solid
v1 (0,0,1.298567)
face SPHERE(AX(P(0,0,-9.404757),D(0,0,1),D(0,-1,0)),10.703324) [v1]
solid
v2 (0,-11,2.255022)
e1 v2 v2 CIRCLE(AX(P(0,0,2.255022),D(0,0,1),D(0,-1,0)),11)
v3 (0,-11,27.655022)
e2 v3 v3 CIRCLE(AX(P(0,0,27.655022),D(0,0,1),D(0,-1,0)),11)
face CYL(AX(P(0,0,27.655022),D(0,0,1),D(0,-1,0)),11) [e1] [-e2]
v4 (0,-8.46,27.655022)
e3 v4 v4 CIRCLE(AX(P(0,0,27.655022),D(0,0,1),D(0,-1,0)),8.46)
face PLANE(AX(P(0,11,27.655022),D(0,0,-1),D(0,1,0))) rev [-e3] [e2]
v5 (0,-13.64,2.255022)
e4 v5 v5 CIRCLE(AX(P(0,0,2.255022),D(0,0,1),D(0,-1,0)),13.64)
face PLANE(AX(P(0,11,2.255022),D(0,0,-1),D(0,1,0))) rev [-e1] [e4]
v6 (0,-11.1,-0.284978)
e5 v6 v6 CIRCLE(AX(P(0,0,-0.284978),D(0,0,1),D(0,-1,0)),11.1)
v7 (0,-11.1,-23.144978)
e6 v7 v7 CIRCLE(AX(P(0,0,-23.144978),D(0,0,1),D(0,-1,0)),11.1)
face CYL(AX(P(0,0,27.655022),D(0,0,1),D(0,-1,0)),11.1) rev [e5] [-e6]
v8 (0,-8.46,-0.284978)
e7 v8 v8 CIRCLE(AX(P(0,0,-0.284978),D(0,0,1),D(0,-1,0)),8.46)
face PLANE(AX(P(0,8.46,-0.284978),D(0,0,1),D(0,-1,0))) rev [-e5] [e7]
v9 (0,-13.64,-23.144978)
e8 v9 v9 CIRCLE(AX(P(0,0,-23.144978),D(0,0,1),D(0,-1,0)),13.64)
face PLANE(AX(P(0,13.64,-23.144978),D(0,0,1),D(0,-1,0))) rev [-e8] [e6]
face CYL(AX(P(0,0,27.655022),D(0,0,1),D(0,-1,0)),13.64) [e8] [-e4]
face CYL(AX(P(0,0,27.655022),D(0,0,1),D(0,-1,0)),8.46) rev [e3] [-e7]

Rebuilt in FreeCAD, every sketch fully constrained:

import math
import FreeCAD as App
import Part
import Sketcher

V = App.Vector
Q = App.Units.Quantity


def add_polygon(sketch, points):
    """Adds a closed chain of lines whose ends are joined by coincident constraints."""
    first, n = sketch.GeometryCount, len(points)
    for a, b in zip(points, points[1:] + points[:1]):
        sketch.addGeometry(Part.LineSegment(App.Vector(*a, 0), App.Vector(*b, 0)), False)
    for i in range(n):
        sketch.addConstraint(Sketcher.Constraint("Coincident", first + i, 2, first + (i + 1) % n, 1))

doc = App.newDocument("Part")
body = doc.addObject("PartDesign::Body", "Body")
body.AllowCompound = True

# Sketch on YZ plane
sketch1 = body.newObject("Sketcher::SketchObject", "Sketch")
sketch1.AttachmentSupport = (doc.getObject("YZ_Plane"), [""])
sketch1.MapMode = "FlatFace"
add_polygon(sketch1, [(11, 2.3), (11, 27.7), (8.5, 27.7), (8.5, -0.3), (11.1, -0.3), (11.1, -23.1), (13.6, -23.1), (13.6, 2.3)])  # lines 0-7
sketch1.addGeometry(Part.LineSegment(V(0, 1.3, 0), V(0, -20.1, 0)), False)  # 8
sketch1.addGeometry(Part.ArcOfCircle(Part.Circle(V(0, -9.4, 0), V(0, 0, 1), 10.7), math.radians(-90), math.radians(90)), False)  # 9
sketch1.addConstraint(Sketcher.Constraint("Coincident", 8, 1, 9, 2))
sketch1.addConstraint(Sketcher.Constraint("Coincident", 9, 1, 8, 2))
sketch1.addConstraint(Sketcher.Constraint("Vertical", 0))
sketch1.addConstraint(Sketcher.Constraint("Horizontal", 1))
sketch1.addConstraint(Sketcher.Constraint("Vertical", 2))
sketch1.addConstraint(Sketcher.Constraint("Horizontal", 3))
sketch1.addConstraint(Sketcher.Constraint("Vertical", 4))
sketch1.addConstraint(Sketcher.Constraint("Horizontal", 5))
sketch1.addConstraint(Sketcher.Constraint("Vertical", 6))
sketch1.addConstraint(Sketcher.Constraint("Horizontal", 7))
sketch1.addConstraint(Sketcher.Constraint("Vertical", 8))
sketch1.addConstraint(Sketcher.Constraint("PointOnObject", 9, 3, -2))
sketch1.addConstraint(Sketcher.Constraint("PointOnObject", 8, 1, -2))
sketch1.addConstraint(Sketcher.Constraint("Equal", 1, 5))
sketch1.addConstraint(Sketcher.Constraint("Equal", 0, 6))
sketch1.addConstraint(Sketcher.Constraint("DistanceY", 0, 1, 0, 2, Q("1 in")))
sketch1.addConstraint(Sketcher.Constraint("DistanceX", 1, 2, 1, 1, Q("0.1 in")))
sketch1.addConstraint(Sketcher.Constraint("DistanceY", 2, 2, 2, 1, Q("1.1 in")))
sketch1.addConstraint(Sketcher.Constraint("DistanceX", 3, 1, 3, 2, 2.64))
sketch1.addConstraint(Sketcher.Constraint("Radius", 9, 10.703324))
sketch1.addConstraint(Sketcher.Constraint("DistanceX", -1, 1, 0, 2, 11.0))
sketch1.addConstraint(Sketcher.Constraint("DistanceY", 9, 1, -1, 1, 20.108081))
sketch1.addConstraint(Sketcher.Constraint("DistanceY", 9, 3, 0, 2, 37.05978))
revolution = body.newObject("PartDesign::Revolution", "Revolution")
revolution.Profile = sketch1
revolution.ReferenceAxis = (sketch1, ["V_Axis"])
revolution.Angle = 360

doc.recompute()
